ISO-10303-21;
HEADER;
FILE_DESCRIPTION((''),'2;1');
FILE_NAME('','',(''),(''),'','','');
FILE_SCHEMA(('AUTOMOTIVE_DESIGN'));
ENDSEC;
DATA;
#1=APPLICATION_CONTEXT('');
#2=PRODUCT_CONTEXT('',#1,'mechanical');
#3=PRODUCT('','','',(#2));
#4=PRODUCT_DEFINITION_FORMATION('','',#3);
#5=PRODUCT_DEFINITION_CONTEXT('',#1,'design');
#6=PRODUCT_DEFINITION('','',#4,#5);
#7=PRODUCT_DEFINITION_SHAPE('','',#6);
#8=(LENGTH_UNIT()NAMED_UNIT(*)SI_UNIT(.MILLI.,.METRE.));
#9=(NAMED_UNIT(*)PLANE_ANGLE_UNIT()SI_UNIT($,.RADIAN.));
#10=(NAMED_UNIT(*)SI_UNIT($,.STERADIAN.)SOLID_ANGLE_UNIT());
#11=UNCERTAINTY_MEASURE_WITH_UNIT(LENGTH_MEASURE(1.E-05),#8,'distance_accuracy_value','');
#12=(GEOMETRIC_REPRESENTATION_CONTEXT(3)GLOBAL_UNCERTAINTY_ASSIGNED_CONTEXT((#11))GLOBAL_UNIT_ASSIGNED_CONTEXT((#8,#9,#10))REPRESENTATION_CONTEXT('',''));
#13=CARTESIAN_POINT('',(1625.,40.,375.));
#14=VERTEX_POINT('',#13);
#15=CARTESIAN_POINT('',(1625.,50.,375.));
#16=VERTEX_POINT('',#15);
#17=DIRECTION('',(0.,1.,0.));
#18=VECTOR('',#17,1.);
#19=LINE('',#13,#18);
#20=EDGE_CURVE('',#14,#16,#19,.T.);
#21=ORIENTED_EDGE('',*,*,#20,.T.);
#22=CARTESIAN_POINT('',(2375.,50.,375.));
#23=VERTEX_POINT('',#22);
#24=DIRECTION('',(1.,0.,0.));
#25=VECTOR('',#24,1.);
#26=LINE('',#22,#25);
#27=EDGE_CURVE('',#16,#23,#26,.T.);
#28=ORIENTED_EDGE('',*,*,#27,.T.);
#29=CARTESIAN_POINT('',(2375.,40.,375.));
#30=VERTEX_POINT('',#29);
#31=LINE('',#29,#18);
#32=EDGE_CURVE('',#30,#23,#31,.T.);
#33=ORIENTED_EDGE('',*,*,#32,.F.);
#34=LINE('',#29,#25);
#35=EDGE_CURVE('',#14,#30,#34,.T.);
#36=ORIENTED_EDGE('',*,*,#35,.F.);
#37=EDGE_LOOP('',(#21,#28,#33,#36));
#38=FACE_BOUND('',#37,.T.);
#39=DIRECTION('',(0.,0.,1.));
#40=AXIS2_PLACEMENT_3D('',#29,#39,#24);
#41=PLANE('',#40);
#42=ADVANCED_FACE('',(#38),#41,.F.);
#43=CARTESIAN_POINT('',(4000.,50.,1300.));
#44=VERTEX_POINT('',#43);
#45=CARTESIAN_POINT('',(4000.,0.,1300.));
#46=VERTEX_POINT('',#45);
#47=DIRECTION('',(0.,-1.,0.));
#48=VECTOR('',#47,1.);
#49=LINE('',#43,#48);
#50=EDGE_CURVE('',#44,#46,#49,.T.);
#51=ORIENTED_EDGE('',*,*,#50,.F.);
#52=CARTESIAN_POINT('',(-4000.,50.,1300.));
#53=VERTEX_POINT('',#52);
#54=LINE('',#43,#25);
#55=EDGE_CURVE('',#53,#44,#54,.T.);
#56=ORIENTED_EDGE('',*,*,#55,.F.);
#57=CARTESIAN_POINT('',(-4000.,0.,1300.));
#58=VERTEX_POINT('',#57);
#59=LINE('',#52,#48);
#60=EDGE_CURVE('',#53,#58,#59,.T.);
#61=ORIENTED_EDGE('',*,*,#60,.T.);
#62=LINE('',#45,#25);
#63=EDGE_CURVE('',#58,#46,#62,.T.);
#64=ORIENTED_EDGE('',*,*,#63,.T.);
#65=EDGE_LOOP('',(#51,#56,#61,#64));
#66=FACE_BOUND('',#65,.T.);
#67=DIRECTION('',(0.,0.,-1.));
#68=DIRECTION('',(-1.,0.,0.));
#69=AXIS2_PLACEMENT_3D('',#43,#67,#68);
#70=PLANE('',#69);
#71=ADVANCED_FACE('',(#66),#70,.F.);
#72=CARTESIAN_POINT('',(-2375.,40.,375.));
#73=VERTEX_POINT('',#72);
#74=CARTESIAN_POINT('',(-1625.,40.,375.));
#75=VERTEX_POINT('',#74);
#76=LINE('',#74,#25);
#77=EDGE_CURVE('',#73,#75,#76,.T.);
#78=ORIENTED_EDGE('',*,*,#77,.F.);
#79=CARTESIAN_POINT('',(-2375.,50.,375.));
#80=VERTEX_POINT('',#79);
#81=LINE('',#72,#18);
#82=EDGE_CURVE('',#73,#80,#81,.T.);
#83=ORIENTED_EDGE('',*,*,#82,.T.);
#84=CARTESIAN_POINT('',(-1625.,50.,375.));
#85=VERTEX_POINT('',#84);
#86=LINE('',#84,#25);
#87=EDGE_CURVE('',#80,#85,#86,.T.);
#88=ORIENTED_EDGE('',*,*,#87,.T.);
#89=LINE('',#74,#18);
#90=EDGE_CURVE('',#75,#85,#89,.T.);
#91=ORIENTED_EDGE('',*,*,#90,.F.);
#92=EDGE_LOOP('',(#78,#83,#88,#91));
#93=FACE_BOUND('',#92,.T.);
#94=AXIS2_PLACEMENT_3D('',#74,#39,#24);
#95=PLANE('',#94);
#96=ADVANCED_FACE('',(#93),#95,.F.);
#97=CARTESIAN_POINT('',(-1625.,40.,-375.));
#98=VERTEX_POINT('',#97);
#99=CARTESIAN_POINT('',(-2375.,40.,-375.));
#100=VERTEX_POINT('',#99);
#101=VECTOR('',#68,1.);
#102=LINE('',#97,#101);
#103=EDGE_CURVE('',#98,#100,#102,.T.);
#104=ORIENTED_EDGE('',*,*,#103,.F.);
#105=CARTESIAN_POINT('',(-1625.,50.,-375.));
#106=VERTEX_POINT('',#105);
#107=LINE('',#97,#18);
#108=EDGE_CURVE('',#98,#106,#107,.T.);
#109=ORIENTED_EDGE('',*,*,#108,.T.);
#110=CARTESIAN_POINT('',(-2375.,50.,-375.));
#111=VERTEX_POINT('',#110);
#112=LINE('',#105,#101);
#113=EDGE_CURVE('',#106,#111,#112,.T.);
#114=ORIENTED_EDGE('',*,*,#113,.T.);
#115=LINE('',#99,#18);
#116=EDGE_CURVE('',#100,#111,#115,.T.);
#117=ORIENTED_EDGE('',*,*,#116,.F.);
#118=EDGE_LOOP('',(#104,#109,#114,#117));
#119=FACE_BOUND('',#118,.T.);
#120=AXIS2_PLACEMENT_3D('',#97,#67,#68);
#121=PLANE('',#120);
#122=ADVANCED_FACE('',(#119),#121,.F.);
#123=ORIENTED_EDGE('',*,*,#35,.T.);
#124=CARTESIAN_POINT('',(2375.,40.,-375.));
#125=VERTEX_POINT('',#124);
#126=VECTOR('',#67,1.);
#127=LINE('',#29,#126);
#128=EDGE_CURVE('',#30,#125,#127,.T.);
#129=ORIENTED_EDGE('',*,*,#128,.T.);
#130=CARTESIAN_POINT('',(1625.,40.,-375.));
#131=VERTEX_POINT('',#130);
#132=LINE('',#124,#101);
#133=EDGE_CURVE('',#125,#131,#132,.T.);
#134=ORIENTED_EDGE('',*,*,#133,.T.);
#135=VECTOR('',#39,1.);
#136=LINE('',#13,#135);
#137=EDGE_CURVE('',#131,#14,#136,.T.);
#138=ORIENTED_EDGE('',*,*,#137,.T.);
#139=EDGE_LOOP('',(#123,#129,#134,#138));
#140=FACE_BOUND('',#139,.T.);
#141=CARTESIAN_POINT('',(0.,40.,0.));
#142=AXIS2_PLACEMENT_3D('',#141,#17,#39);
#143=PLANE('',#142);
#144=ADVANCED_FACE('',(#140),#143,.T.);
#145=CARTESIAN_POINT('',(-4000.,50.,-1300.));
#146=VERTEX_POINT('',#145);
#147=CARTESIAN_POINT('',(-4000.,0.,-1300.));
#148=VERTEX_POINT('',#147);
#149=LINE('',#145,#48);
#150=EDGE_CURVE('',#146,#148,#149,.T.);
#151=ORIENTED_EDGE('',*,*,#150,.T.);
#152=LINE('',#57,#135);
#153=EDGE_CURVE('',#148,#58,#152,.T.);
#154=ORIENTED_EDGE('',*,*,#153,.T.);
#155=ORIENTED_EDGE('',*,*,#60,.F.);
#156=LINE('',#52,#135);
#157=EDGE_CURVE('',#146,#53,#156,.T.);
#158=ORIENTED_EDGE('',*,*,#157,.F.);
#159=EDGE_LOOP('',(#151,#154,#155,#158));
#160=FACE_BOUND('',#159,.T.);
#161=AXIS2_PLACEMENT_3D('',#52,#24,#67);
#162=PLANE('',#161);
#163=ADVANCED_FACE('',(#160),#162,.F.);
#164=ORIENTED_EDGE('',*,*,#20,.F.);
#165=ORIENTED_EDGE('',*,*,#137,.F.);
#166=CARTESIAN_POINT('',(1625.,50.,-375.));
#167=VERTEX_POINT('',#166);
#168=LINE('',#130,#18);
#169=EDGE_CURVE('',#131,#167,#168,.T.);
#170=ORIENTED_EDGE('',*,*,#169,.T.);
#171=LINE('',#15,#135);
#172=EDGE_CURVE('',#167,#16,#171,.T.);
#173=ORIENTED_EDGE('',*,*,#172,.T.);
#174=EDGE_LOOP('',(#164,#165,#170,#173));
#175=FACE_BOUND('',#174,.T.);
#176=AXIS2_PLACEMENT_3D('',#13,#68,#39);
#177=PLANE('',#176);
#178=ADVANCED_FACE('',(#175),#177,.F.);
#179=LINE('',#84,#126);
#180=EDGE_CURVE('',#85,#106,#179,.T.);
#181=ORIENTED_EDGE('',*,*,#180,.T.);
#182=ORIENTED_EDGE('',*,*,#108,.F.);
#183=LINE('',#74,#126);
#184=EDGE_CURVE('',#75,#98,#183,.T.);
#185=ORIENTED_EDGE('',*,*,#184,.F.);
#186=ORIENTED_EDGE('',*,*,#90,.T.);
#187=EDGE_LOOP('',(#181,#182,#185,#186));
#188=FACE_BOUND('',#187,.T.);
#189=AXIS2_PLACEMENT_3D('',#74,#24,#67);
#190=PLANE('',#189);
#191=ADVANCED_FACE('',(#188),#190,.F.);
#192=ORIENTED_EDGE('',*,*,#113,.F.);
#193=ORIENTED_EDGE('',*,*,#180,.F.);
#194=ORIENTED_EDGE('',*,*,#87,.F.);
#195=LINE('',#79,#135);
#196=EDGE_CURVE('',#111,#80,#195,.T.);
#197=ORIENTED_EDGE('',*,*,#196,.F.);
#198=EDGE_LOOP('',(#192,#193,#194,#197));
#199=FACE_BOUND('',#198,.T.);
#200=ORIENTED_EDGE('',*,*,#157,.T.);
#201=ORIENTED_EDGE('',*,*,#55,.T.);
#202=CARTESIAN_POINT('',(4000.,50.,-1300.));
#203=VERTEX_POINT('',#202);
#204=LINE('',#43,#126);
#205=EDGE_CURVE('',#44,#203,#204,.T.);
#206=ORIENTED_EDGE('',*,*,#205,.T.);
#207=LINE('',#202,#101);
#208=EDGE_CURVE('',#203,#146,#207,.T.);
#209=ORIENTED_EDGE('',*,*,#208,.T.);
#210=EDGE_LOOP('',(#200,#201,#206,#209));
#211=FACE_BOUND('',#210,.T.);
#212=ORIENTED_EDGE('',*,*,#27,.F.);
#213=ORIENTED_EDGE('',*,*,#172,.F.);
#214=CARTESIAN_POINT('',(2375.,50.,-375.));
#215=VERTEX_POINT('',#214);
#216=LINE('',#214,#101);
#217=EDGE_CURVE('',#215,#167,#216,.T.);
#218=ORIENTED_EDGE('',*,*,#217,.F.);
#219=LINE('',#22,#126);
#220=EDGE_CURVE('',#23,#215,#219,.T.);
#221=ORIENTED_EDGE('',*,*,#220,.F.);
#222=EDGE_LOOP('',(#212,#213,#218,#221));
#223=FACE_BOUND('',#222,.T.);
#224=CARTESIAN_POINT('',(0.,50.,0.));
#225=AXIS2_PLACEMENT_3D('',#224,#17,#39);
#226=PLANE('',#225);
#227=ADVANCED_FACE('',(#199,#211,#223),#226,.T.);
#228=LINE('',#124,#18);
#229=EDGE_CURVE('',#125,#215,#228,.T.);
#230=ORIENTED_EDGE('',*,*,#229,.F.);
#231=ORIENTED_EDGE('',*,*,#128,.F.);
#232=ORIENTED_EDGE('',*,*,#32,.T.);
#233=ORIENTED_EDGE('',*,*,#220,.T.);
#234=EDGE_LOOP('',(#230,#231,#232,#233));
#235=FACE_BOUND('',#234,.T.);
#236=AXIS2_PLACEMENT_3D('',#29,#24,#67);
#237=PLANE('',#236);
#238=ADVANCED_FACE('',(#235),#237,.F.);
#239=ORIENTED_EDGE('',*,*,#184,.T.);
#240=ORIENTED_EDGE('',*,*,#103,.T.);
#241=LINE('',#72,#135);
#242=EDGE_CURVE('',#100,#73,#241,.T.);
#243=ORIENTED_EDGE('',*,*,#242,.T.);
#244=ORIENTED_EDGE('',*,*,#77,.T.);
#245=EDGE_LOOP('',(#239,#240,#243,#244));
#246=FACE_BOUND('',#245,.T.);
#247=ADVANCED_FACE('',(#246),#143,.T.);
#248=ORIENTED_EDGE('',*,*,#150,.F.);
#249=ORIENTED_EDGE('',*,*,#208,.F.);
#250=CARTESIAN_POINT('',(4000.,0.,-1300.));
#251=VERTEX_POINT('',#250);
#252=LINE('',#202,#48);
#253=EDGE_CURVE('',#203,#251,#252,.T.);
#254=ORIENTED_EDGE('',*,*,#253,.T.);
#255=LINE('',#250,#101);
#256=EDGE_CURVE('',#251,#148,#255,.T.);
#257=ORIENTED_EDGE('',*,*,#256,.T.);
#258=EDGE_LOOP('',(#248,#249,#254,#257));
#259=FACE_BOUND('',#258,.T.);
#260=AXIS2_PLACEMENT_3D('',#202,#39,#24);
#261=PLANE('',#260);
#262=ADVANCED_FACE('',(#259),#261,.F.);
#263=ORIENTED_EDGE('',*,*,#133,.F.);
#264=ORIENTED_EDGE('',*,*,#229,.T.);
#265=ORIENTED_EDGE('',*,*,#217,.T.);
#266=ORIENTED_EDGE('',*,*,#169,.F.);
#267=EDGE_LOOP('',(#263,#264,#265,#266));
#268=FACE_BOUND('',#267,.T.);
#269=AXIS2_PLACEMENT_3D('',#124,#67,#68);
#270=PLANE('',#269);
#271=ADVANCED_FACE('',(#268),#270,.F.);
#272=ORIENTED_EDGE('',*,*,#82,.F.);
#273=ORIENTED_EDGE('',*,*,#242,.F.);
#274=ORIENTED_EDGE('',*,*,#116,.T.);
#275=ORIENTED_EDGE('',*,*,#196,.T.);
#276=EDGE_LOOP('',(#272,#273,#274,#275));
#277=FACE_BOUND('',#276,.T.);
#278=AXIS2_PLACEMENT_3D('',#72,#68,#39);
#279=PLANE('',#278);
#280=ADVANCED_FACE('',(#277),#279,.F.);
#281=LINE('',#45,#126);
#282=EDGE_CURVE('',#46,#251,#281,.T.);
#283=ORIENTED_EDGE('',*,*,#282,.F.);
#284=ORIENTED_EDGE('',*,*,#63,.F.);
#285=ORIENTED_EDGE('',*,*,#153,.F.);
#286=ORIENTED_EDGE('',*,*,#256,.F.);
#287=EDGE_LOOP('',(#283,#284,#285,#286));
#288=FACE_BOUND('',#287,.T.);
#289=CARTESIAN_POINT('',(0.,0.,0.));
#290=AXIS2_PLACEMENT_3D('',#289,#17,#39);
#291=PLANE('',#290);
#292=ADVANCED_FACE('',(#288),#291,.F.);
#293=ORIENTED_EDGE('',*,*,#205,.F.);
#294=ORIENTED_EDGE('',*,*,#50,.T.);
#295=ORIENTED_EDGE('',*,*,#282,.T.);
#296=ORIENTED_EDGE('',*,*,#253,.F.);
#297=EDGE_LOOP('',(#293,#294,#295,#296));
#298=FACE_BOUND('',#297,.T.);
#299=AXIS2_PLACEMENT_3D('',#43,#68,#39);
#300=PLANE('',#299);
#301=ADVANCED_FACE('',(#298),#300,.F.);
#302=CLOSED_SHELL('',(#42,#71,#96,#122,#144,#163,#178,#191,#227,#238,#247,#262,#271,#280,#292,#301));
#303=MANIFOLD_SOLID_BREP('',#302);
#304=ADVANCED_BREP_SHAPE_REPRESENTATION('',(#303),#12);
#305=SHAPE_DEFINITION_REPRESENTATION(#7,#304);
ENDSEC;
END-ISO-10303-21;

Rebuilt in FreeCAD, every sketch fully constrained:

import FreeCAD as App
import Part
import Sketcher
from FreeCAD import Vector

doc = App.newDocument("Part")
body = doc.addObject("PartDesign::Body", "Body")

sketch1 = body.newObject("Sketcher::SketchObject", "Sketch")
sketch1.AttachmentSupport = (doc.getObject("XZ_Plane"), [""])
sketch1.MapMode = "FlatFace"
sketch1.addGeometry([
    Part.LineSegment(Vector(-4000, -1300, 0), Vector(-4000, 1300, 0)),
    Part.LineSegment(Vector(-4000, 1300, 0), Vector(4000, 1300, 0)),
    Part.LineSegment(Vector(4000, 1300, 0), Vector(4000, -1300, 0)),
    Part.LineSegment(Vector(4000, -1300, 0), Vector(-4000, -1300, 0)),
], False)
sketch1.addConstraint([
    Sketcher.Constraint("Coincident", 0, 2, 1, 1),
    Sketcher.Constraint("Coincident", 1, 2, 2, 1),
    Sketcher.Constraint("Coincident", 2, 2, 3, 1),
    Sketcher.Constraint("Coincident", 3, 2, 0, 1),
    Sketcher.Constraint("Vertical", 0),
    Sketcher.Constraint("Horizontal", 1),
    Sketcher.Constraint("Vertical", 2),
    Sketcher.Constraint("Horizontal", 3),
    Sketcher.Constraint("Symmetric", 0, 2, 2, 2, -1, 1),
    Sketcher.Constraint("DistanceX", 1, 1, 1, 2, 8000.0),
    Sketcher.Constraint("DistanceY", 0, 1, 0, 2, 2600.0),
])
pad1 = body.newObject("PartDesign::Pad", "Pad")
pad1.Profile = sketch1
pad1.Length = 50
pad1.Reversed = True

sketch2 = body.newObject("Sketcher::SketchObject", "Sketch001")
sketch2.AttachmentSupport = (doc.getObject("XZ_Plane"), [""])
sketch2.MapMode = "FlatFace"
sketch2.AttachmentOffset = App.Placement(Vector(0, 0, -50), App.Rotation())
sketch2.addGeometry([
    Part.LineSegment(Vector(-2375, -375, 0), Vector(-2375, 375, 0)),
    Part.LineSegment(Vector(-2375, 375, 0), Vector(-1625, 375, 0)),
    Part.LineSegment(Vector(-1625, 375, 0), Vector(-1625, -375, 0)),
    Part.LineSegment(Vector(-1625, -375, 0), Vector(-2375, -375, 0)),
    Part.LineSegment(Vector(1625, -375, 0), Vector(1625, 375, 0)),
    Part.LineSegment(Vector(1625, 375, 0), Vector(2375, 375, 0)),
    Part.LineSegment(Vector(2375, 375, 0), Vector(2375, -375, 0)),
    Part.LineSegment(Vector(2375, -375, 0), Vector(1625, -375, 0)),
], False)
sketch2.addConstraint([
    Sketcher.Constraint("Coincident", 0, 2, 1, 1),
    Sketcher.Constraint("Coincident", 1, 2, 2, 1),
    Sketcher.Constraint("Coincident", 2, 2, 3, 1),
    Sketcher.Constraint("Coincident", 3, 2, 0, 1),
    Sketcher.Constraint("Coincident", 4, 2, 5, 1),
    Sketcher.Constraint("Coincident", 5, 2, 6, 1),
    Sketcher.Constraint("Coincident", 6, 2, 7, 1),
    Sketcher.Constraint("Coincident", 7, 2, 4, 1),
    Sketcher.Constraint("Vertical", 0),
    Sketcher.Constraint("Horizontal", 1),
    Sketcher.Constraint("Vertical", 2),
    Sketcher.Constraint("Horizontal", 3),
    Sketcher.Constraint("Vertical", 4),
    Sketcher.Constraint("Horizontal", 5),
    Sketcher.Constraint("Vertical", 6),
    Sketcher.Constraint("Horizontal", 7),
    Sketcher.Constraint("Symmetric", 2, 2, 4, 2, -1, 1),
    Sketcher.Constraint("Symmetric", 0, 2, 6, 2, -1, 1),
    Sketcher.Constraint("Horizontal", 1, 2, 4, 2),
    Sketcher.Constraint("Equal", 7, 0),
    Sketcher.Constraint("DistanceX", 1, 1, 1, 2, 750.0),
    Sketcher.Constraint("DistanceX", 0, 2, -1, 1, 2375.0),
])
pocket1 = body.newObject("PartDesign::Pocket", "Pocket")
pocket1.Profile = sketch2
pocket1.Length = 10
pocket1.Reversed = True

doc.recompute()
